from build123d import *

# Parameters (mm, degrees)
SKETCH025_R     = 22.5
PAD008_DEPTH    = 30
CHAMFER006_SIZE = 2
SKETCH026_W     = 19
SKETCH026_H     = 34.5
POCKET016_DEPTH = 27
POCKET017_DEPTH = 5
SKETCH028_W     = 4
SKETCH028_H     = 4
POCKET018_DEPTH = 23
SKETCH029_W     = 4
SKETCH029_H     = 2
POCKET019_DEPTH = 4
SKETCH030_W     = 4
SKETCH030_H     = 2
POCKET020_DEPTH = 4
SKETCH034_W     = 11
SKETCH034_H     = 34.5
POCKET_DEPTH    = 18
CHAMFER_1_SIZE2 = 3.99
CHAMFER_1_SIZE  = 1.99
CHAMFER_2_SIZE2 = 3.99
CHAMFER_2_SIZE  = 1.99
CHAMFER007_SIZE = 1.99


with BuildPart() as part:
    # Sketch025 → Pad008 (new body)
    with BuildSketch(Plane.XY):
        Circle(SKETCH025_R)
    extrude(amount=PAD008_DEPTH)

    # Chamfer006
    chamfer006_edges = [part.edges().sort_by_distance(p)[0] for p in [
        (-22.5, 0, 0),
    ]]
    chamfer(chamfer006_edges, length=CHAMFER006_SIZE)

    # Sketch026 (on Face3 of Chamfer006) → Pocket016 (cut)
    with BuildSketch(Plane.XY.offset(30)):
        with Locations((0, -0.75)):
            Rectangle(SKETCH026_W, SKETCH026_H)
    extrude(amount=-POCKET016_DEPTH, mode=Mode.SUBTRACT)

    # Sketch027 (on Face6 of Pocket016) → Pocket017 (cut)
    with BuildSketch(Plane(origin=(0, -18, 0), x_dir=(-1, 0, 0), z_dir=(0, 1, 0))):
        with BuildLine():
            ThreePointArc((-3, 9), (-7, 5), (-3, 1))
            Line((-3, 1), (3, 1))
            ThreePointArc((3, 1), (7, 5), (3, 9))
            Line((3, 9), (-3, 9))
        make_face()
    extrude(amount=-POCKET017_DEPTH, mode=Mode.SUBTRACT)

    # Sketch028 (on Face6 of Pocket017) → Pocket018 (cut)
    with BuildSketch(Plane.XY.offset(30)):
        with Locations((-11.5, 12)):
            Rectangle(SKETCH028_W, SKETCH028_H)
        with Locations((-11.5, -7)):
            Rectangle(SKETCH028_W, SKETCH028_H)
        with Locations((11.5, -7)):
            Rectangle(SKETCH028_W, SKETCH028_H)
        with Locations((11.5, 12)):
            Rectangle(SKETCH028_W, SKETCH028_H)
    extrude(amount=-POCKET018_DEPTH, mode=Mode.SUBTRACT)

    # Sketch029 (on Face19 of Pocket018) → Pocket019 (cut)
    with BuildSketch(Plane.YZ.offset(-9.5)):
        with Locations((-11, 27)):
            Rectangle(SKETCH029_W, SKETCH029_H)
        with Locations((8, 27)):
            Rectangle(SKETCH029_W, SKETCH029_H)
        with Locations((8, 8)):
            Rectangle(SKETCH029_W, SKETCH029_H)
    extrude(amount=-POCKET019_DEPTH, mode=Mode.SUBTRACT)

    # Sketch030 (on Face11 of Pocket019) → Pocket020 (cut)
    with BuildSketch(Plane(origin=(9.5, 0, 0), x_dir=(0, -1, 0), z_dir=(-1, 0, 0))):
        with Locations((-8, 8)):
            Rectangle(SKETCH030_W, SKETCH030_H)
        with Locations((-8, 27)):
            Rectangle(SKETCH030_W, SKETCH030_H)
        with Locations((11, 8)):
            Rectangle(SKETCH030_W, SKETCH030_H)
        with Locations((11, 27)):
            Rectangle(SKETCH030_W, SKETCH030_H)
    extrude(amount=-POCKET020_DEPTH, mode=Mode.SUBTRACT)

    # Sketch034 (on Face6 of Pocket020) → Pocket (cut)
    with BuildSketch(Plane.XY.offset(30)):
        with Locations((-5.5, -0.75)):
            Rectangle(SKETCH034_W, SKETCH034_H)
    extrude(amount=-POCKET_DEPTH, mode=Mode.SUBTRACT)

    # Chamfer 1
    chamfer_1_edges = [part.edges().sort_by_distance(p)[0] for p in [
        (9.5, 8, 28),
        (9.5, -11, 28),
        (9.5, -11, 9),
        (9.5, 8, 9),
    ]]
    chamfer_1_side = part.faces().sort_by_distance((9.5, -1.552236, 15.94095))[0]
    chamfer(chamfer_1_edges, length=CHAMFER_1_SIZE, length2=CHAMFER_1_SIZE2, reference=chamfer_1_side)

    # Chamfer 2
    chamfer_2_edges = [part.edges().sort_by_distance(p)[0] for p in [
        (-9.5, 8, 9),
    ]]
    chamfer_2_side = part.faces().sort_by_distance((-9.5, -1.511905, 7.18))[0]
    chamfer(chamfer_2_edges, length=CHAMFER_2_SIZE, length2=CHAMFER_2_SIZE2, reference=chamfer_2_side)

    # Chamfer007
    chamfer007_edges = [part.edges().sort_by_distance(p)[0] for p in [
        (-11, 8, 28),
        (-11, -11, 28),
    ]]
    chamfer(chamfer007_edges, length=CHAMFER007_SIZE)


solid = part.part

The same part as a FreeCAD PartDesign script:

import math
import FreeCAD as App
import Part
import Sketcher


def edges_at(feature, points):
    """Names of the edges that pass closest to the given points."""
    edges = feature.Shape.Edges
    near = lambda p: min(range(len(edges)), key=lambda i: edges[i].distToShape(Part.Vertex(*p))[0])
    return sorted({f"Edge{near(p) + 1}" for p in points})


def add_polygon(sketch, points):
    """Adds a closed chain of lines whose ends are joined by coincident constraints."""
    first, n = sketch.GeometryCount, len(points)
    for a, b in zip(points, points[1:] + points[:1]):
        sketch.addGeometry(Part.LineSegment(App.Vector(*a, 0), App.Vector(*b, 0)), False)
    for i in range(n):
        sketch.addConstraint(Sketcher.Constraint("Coincident", first + i, 2, first + (i + 1) % n, 1))

doc = App.newDocument("Part")
body = doc.addObject("PartDesign::Body", "Body")

sketch1 = body.newObject("Sketcher::SketchObject", "Sketch")
sketch1.AttachmentSupport = (doc.getObject("XY_Plane"), [""])
sketch1.MapMode = "FlatFace"
sketch1.addGeometry(Part.Circle(App.Vector(0, 0, 0), App.Vector(0, 0, 1), 22), False)
sketch1.addConstraint([
    Sketcher.Constraint("Coincident", 0, 3, -1, 1),
    Sketcher.Constraint("Diameter", 0, 45.0),
])
pad1 = body.newObject("PartDesign::Pad", "Pad")
pad1.Profile = sketch1
pad1.Length = 30
doc.recompute()

chamfer = body.newObject("PartDesign::Chamfer", "Chamfer")
chamfer.Base = (pad1, edges_at(pad1, [(-22.5, 0, 0)]))
chamfer.Size = 2

sketch2 = body.newObject("Sketcher::SketchObject", "Sketch001")
sketch2.AttachmentSupport = (doc.getObject("XY_Plane"), [""])
sketch2.MapMode = "FlatFace"
sketch2.AttachmentOffset = App.Placement(App.Vector(0, 0, 30), App.Rotation())
add_polygon(sketch2, [(-10, 16), (-10, -18), (10, -18), (10, 16)])
sketch2.addConstraint([
    Sketcher.Constraint("Vertical", 0),
    Sketcher.Constraint("Horizontal", 1),
    Sketcher.Constraint("Vertical", 2),
    Sketcher.Constraint("Horizontal", 3),
    Sketcher.Constraint("DistanceX", 1, 1, 1, 2, 19.0),
    Sketcher.Constraint("DistanceY", 0, 2, 0, 1, 34.5),
    Sketcher.Constraint("DistanceY", 0, 2, -1, 1, 18.0),
    Sketcher.Constraint("DistanceX", 0, 2, -1, 1, 9.5),
])
pocket1 = body.newObject("PartDesign::Pocket", "Pocket")
pocket1.Profile = sketch2
pocket1.Length = 27

sketch3 = body.newObject("Sketcher::SketchObject", "Sketch002")
sketch3.AttachmentSupport = (doc.getObject("XZ_Plane"), [""])
sketch3.MapMode = "FlatFace"
sketch3.AttachmentOffset = App.Placement(App.Vector(0, 0, 18), App.Rotation())
sketch3.addGeometry([
    Part.ArcOfCircle(Part.Circle(App.Vector(3, 5, 0), App.Vector(0, 0, 1), 4), math.radians(-90), math.radians(90)),
    Part.LineSegment(App.Vector(3, 1, 0), App.Vector(-3, 1, 0)),
    Part.ArcOfCircle(Part.Circle(App.Vector(-3, 5, 0), App.Vector(0, 0, 1), 4), math.radians(90), math.radians(270)),
    Part.LineSegment(App.Vector(-3, 9, 0), App.Vector(3, 9, 0)),
], False)
sketch3.addConstraint([
    Sketcher.Constraint("Tangent", 0, 1, 1, 1),
    Sketcher.Constraint("Tangent", 1, 2, 2, 2),
    Sketcher.Constraint("Tangent", 2, 1, 3, 1),
    Sketcher.Constraint("Tangent", 3, 2, 0, 2),
    Sketcher.Constraint("Horizontal", 1),
    Sketcher.Constraint("Horizontal", 3),
    Sketcher.Constraint("Radius", 0, 4.0),
    Sketcher.Constraint("DistanceX", 1, 2, 1, 1, 6.0),
    Sketcher.Constraint("DistanceX", -1, 1, 0, 3, 3.0),
    Sketcher.Constraint("DistanceY", -1, 1, 0, 3, 5.0),
])
pocket2 = body.newObject("PartDesign::Pocket", "Pocket001")
pocket2.Profile = sketch3
pocket2.Length = 5
pocket2.Reversed = True

sketch4 = body.newObject("Sketcher::SketchObject", "Sketch003")
sketch4.AttachmentSupport = (doc.getObject("XY_Plane"), [""])
sketch4.MapMode = "FlatFace"
sketch4.AttachmentOffset = App.Placement(App.Vector(0, 0, 30), App.Rotation())
add_polygon(sketch4, [(-13.5, 14), (-13.5, 10), (-9.5, 10), (-9.5, 14)])
add_polygon(sketch4, [(-13.5, -5), (-13.5, -9), (-9.5, -9), (-9.5, -5)])
add_polygon(sketch4, [(9.5, -5), (9.5, -9), (13.5, -9), (13.5, -5)])
add_polygon(sketch4, [(9.5, 14), (9.5, 10), (13.5, 10), (13.5, 14)])
sketch4.addConstraint([
    Sketcher.Constraint("Vertical", 0),
    Sketcher.Constraint("Horizontal", 1),
    Sketcher.Constraint("Vertical", 2),
    Sketcher.Constraint("Horizontal", 3),
    Sketcher.Constraint("Vertical", 4),
    Sketcher.Constraint("Horizontal", 5),
    Sketcher.Constraint("Vertical", 6),
    Sketcher.Constraint("Horizontal", 7),
    Sketcher.Constraint("Vertical", 8),
    Sketcher.Constraint("Horizontal", 9),
    Sketcher.Constraint("Vertical", 10),
    Sketcher.Constraint("Horizontal", 11),
    Sketcher.Constraint("Vertical", 12),
    Sketcher.Constraint("Horizontal", 13),
    Sketcher.Constraint("Vertical", 14),
    Sketcher.Constraint("Horizontal", 15),
    Sketcher.Constraint("Symmetric", 5, 2, 8, 2, -2),
    Sketcher.Constraint("Symmetric", 7, 2, 10, 2, -2),
    Sketcher.Constraint("Symmetric", 1, 2, 12, 2, -2),
    Sketcher.Constraint("Symmetric", 3, 2, 14, 2, -2),
    Sketcher.Constraint("Vertical", 3, 2, 4, 2),
    Sketcher.Constraint("Vertical", 2, 2, 5, 2),
    Sketcher.Constraint("Equal", 15, 0),
    Sketcher.Constraint("Equal", 2, 4),
    Sketcher.Constraint("DistanceX", 1, 1, 1, 2, 4.0),
    Sketcher.Constraint("DistanceY", -1, 1, 0, 2, 10.0),
    Sketcher.Constraint("DistanceY", 4, 2, -1, 1, 9.0),
    Sketcher.Constraint("DistanceX", 5, 2, 8, 2, 19.0),
])
pocket3 = body.newObject("PartDesign::Pocket", "Pocket002")
pocket3.Profile = sketch4
pocket3.Length = 23

sketch5 = body.newObject("Sketcher::SketchObject", "Sketch004")
sketch5.AttachmentSupport = (doc.getObject("YZ_Plane"), [""])
sketch5.MapMode = "FlatFace"
sketch5.AttachmentOffset = App.Placement(App.Vector(0, 0, -9.5), App.Rotation())
add_polygon(sketch5, [(-13, 28), (-13, 26), (-9, 26), (-9, 28)])
add_polygon(sketch5, [(6, 28), (6, 26), (10, 26), (10, 28)])
add_polygon(sketch5, [(6, 9), (6, 7), (10, 7), (10, 9)])
sketch5.addConstraint([
    Sketcher.Constraint("Vertical", 0),
    Sketcher.Constraint("Horizontal", 1),
    Sketcher.Constraint("Vertical", 2),
    Sketcher.Constraint("Horizontal", 3),
    Sketcher.Constraint("Vertical", 4),
    Sketcher.Constraint("Horizontal", 5),
    Sketcher.Constraint("Vertical", 6),
    Sketcher.Constraint("Horizontal", 7),
    Sketcher.Constraint("Vertical", 8),
    Sketcher.Constraint("Horizontal", 9),
    Sketcher.Constraint("Vertical", 10),
    Sketcher.Constraint("Horizontal", 11),
    Sketcher.Constraint("Horizontal", 1, 2, 4, 2),
    Sketcher.Constraint("Horizontal", 3, 2, 6, 2),
    Sketcher.Constraint("Vertical", 7, 2, 8, 2),
    Sketcher.Constraint("Vertical", 6, 2, 9, 2),
    Sketcher.Constraint("Equal", 3, 5),
    Sketcher.Constraint("Equal", 6, 8),
    Sketcher.Constraint("DistanceX", 1, 1, 1, 2, 4.0),
    Sketcher.Constraint("DistanceY", 0, 2, 0, 1, 2.0),
    Sketcher.Constraint("DistanceX", 0, 2, -1, 1, 13.0),
    Sketcher.Constraint("DistanceY", -1, 1, 0, 2, 26.0),
    Sketcher.Constraint("DistanceX", -1, 1, 4, 2, 6.0),
    Sketcher.Constraint("DistanceY", -1, 1, 8, 2, 7.0),
])
pocket4 = body.newObject("PartDesign::Pocket", "Pocket003")
pocket4.Profile = sketch5
pocket4.Length = 4

sketch6 = body.newObject("Sketcher::SketchObject", "Sketch005")
sketch6.AttachmentSupport = (doc.getObject("YZ_Plane"), [""])
sketch6.MapMode = "FlatFace"
sketch6.AttachmentOffset = App.Placement(App.Vector(0, 0, 9.5), App.Rotation())
add_polygon(sketch6, [(10, 9), (10, 7), (6, 7), (6, 9)])
add_polygon(sketch6, [(10, 28), (10, 26), (6, 26), (6, 28)])
add_polygon(sketch6, [(-9, 9), (-9, 7), (-13, 7), (-13, 9)])
add_polygon(sketch6, [(-9, 28), (-9, 26), (-13, 26), (-13, 28)])
sketch6.addConstraint([
    Sketcher.Constraint("Vertical", 0),
    Sketcher.Constraint("Horizontal", 1),
    Sketcher.Constraint("Vertical", 2),
    Sketcher.Constraint("Horizontal", 3),
    Sketcher.Constraint("Vertical", 4),
    Sketcher.Constraint("Horizontal", 5),
    Sketcher.Constraint("Vertical", 6),
    Sketcher.Constraint("Horizontal", 7),
    Sketcher.Constraint("Vertical", 8),
    Sketcher.Constraint("Horizontal", 9),
    Sketcher.Constraint("Vertical", 10),
    Sketcher.Constraint("Horizontal", 11),
    Sketcher.Constraint("Vertical", 12),
    Sketcher.Constraint("Horizontal", 13),
    Sketcher.Constraint("Vertical", 14),
    Sketcher.Constraint("Horizontal", 15),
    Sketcher.Constraint("Horizontal", 1, 2, 8, 2),
    Sketcher.Constraint("Horizontal", 3, 2, 10, 2),
    Sketcher.Constraint("Horizontal", 5, 2, 12, 2),
    Sketcher.Constraint("Horizontal", 7, 2, 14, 2),
    Sketcher.Constraint("Vertical", 3, 2, 4, 2),
    Sketcher.Constraint("Vertical", 2, 2, 5, 2),
    Sketcher.Constraint("Vertical", 11, 2, 12, 2),
    Sketcher.Constraint("Vertical", 10, 2, 13, 2),
    Sketcher.Constraint("Equal", 7, 9),
    Sketcher.Constraint("Equal", 2, 4),
    Sketcher.Constraint("DistanceX", 1, 2, 1, 1, 4.0),
    Sketcher.Constraint("DistanceY", 0, 2, 0, 1, 2.0),
    Sketcher.Constraint("DistanceX", -1, 1, 0, 2, 10.0),
    Sketcher.Constraint("DistanceY", -1, 1, 0, 2, 7.0),
    Sketcher.Constraint("DistanceY", -1, 1, 4, 2, 26.0),
    Sketcher.Constraint("DistanceX", 8, 2, -1, 1, 9.0),
])
pocket5 = body.newObject("PartDesign::Pocket", "Pocket004")
pocket5.Profile = sketch6
pocket5.Length = 4
pocket5.Reversed = True

sketch7 = body.newObject("Sketcher::SketchObject", "Sketch006")
sketch7.AttachmentSupport = (doc.getObject("XY_Plane"), [""])
sketch7.MapMode = "FlatFace"
sketch7.AttachmentOffset = App.Placement(App.Vector(0, 0, 30), App.Rotation())
add_polygon(sketch7, [(-11, 16), (-11, -18), (0, -18), (0, 16)])
sketch7.addConstraint([
    Sketcher.Constraint("Vertical", 0),
    Sketcher.Constraint("Horizontal", 1),
    Sketcher.Constraint("Vertical", 2),
    Sketcher.Constraint("Horizontal", 3),
    Sketcher.Constraint("PointOnObject", 1, 2, -2),
    Sketcher.Constraint("DistanceX", 1, 1, 1, 2, 11.0),
    Sketcher.Constraint("DistanceY", 0, 2, 0, 1, 34.5),
    Sketcher.Constraint("DistanceY", 0, 2, -1, 1, 18.0),
])
pocket6 = body.newObject("PartDesign::Pocket", "Pocket005")
pocket6.Profile = sketch7
pocket6.Length = 18
doc.recompute()

chamfer2 = body.newObject("PartDesign::Chamfer", "Chamfer001")
chamfer2.Base = (pocket6, edges_at(pocket6, [
    (9.5, 8, 28),
    (9.5, -11, 28),
    (9.5, -11, 9),
    (9.5, 8, 9),
]))
chamfer2.ChamferType = "Two distances"
chamfer2.Size = 1.99
chamfer2.Size2 = 3.99
doc.recompute()

chamfer3 = body.newObject("PartDesign::Chamfer", "Chamfer002")
chamfer3.Base = (chamfer2, edges_at(chamfer2, [(-9.5, 8, 9)]))
chamfer3.ChamferType = "Two distances"
chamfer3.Size = 1.99
chamfer3.Size2 = 3.99
doc.recompute()

chamfer4 = body.newObject("PartDesign::Chamfer", "Chamfer003")
chamfer4.Base = (chamfer3, edges_at(chamfer3, [(-11, 8, 28), (-11, -11, 28)]))
chamfer4.Size = 1.99

doc.recompute()
